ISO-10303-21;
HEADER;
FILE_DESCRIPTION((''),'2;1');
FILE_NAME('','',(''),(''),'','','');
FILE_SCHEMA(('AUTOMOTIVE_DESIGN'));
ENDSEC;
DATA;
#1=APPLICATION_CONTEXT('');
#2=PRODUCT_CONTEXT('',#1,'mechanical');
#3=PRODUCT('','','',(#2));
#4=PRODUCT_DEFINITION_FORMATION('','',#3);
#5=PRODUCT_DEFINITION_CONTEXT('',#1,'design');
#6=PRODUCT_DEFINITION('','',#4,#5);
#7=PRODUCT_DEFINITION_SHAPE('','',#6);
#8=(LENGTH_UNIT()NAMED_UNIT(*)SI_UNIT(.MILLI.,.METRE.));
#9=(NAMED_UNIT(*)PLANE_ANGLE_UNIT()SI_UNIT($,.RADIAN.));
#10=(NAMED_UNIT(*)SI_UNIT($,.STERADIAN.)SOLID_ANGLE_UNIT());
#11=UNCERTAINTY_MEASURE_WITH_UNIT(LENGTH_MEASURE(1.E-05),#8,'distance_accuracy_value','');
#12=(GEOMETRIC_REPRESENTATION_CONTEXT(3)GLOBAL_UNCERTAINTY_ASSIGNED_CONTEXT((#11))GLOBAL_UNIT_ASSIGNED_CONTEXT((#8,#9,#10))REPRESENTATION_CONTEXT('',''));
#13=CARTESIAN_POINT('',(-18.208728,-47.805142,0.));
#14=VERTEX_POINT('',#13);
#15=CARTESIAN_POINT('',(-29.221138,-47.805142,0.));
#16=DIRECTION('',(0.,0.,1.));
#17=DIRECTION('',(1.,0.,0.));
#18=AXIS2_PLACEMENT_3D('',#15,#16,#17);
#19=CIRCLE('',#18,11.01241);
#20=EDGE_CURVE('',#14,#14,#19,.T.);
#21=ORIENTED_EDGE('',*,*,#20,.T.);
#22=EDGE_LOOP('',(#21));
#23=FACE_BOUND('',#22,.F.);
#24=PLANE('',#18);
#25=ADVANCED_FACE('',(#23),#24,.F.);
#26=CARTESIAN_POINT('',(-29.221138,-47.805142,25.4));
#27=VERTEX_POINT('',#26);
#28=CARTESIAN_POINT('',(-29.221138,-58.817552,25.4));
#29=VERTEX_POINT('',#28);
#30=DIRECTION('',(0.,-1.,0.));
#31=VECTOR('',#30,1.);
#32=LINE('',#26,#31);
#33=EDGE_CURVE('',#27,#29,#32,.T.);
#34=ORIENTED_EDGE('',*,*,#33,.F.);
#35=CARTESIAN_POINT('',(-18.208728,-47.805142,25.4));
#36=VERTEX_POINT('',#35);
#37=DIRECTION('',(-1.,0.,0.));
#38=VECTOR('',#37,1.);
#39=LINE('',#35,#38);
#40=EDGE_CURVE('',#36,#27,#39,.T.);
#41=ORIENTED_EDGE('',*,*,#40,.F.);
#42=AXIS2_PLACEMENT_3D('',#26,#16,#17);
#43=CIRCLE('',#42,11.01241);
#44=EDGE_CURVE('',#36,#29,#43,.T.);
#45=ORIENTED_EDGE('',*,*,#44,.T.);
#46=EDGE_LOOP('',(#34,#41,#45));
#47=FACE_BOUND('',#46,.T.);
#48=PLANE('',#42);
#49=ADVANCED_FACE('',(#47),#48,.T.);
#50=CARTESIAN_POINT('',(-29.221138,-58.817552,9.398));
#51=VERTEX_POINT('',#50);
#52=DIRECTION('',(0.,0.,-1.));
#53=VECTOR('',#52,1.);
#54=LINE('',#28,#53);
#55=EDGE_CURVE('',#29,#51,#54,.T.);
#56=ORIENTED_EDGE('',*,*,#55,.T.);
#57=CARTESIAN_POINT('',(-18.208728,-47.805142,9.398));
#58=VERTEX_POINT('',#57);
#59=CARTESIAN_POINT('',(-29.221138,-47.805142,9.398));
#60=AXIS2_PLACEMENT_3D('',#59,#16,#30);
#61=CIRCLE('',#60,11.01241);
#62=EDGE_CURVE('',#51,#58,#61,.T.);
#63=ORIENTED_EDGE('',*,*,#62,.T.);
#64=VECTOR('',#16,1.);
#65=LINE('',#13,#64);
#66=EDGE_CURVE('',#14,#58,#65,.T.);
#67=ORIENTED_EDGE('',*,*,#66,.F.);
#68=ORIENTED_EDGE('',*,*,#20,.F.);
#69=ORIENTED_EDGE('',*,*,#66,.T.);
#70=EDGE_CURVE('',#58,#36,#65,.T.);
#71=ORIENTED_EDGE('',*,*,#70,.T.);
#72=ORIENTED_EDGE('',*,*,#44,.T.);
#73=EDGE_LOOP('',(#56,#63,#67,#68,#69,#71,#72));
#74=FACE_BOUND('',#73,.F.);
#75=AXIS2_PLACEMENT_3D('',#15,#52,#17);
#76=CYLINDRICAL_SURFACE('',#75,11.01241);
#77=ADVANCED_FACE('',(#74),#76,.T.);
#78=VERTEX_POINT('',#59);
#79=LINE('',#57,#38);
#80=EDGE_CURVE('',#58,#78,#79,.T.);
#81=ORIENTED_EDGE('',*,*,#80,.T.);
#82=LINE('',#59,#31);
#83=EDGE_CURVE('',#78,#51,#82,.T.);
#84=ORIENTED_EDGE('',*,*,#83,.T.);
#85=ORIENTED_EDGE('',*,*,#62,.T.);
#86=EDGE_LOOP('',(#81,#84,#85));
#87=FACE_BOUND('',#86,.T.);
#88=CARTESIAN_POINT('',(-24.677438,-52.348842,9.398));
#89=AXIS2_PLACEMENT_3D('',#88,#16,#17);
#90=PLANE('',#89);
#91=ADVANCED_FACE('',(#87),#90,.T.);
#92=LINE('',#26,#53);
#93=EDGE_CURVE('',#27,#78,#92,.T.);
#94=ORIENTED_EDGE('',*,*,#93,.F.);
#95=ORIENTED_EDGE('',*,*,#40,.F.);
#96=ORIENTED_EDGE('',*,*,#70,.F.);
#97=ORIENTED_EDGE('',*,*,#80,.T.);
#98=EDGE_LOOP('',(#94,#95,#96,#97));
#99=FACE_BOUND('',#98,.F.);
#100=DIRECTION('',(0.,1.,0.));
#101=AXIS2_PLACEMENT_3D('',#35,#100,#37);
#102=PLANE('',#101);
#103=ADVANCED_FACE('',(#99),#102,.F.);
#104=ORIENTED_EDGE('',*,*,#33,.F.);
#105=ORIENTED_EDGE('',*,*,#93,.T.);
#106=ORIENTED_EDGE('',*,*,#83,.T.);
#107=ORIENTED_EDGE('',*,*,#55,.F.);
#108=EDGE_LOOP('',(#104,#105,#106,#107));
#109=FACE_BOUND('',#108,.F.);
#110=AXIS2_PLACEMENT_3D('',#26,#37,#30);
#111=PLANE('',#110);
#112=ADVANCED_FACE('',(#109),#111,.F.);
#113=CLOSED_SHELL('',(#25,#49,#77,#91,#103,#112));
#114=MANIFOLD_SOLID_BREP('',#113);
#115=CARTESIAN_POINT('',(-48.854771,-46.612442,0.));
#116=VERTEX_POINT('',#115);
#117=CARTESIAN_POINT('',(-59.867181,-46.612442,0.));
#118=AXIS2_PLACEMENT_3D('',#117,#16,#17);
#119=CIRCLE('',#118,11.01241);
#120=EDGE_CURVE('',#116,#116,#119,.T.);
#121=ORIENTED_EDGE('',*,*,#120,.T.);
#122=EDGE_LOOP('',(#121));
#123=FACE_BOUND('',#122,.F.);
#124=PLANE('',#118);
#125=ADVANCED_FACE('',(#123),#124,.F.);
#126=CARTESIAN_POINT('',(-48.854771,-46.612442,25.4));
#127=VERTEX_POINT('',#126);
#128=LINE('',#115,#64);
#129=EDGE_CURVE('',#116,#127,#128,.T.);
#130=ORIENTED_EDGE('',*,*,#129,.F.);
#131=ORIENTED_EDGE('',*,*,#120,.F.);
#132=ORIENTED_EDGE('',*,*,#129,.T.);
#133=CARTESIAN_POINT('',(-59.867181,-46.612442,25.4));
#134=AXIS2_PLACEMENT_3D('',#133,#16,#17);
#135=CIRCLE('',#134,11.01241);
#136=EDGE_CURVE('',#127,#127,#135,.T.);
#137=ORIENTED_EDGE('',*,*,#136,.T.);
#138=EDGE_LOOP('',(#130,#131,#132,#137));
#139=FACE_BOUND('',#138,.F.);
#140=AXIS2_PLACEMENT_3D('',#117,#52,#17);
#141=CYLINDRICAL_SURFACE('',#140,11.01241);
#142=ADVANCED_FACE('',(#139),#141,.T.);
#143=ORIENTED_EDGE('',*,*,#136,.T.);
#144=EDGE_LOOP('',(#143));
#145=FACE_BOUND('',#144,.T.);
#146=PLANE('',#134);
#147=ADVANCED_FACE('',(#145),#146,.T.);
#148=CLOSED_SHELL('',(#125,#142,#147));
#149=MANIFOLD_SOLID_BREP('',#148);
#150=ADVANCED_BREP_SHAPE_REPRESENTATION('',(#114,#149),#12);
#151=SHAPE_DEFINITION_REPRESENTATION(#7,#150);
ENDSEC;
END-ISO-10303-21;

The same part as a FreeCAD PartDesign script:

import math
import FreeCAD as App
import Part
import Sketcher

V = App.Vector
Q = App.Units.Quantity

doc = App.newDocument("Part")
body = doc.addObject("PartDesign::Body", "Body")

# Sketch on XY plane
sketch1 = body.newObject("Sketcher::SketchObject", "Sketch")
sketch1.AttachmentSupport = (doc.getObject("XY_Plane"), [""])
sketch1.MapMode = "FlatFace"
sketch1.addGeometry(Part.Circle(V(-60, -47, 0), V(0, 0, 1), 11), False)
sketch1.addConstraint([
    Sketcher.Constraint("Diameter", 0, 22.02482),
    Sketcher.Constraint("DistanceX", 0, 3, -1, 1, 59.867181),
    Sketcher.Constraint("DistanceY", 0, 3, -1, 1, 46.612442),
])
pad1 = body.newObject("PartDesign::Pad", "Pad")
pad1.Profile = sketch1
pad1.Length = Q("1 in")
body2 = doc.addObject("PartDesign::Body", "Body001")

# Sketch on XY plane
sketch2 = body2.newObject("Sketcher::SketchObject", "Sketch001")
sketch2.AttachmentSupport = (doc.getObject("XY_Plane001"), [""])
sketch2.MapMode = "FlatFace"
sketch2.addGeometry(Part.Circle(V(-29, -48, 0), V(0, 0, 1), 11), False)
sketch2.addConstraint([
    Sketcher.Constraint("Diameter", 0, 22.02482),
    Sketcher.Constraint("DistanceY", 0, 3, -1, 1, 47.805142),
    Sketcher.Constraint("DistanceX", 0, 3, -1, 1, 29.221138),
])
pad2 = body2.newObject("PartDesign::Pad", "Pad001")
pad2.Profile = sketch2
pad2.Length = Q("1 in")

# Sketch on XY plane
sketch3 = body2.newObject("Sketcher::SketchObject", "Sketch002")
sketch3.AttachmentSupport = (doc.getObject("XY_Plane001"), [""])
sketch3.MapMode = "FlatFace"
sketch3.AttachmentOffset = App.Placement(V(0, 0, 1 * 25.4), App.Rotation())
sketch3.addGeometry([
    Part.LineSegment(V(-18, -48, 0), V(-29, -48, 0)),
    Part.LineSegment(V(-29, -48, 0), V(-29, -59, 0)),
    Part.ArcOfCircle(Part.Circle(V(-29, -48, 0), V(0, 0, 1), 11), math.radians(-90), math.radians(0)),
], False)
sketch3.addConstraint([
    Sketcher.Constraint("Coincident", 0, 2, 1, 1),
    Sketcher.Constraint("Coincident", 1, 2, 2, 1),
    Sketcher.Constraint("Coincident", 2, 2, 0, 1),
    Sketcher.Constraint("Horizontal", 0),
    Sketcher.Constraint("Vertical", 1),
    Sketcher.Constraint("Coincident", 0, 2, 2, 3),
    Sketcher.Constraint("Radius", 2, 11.01241),
    Sketcher.Constraint("DistanceY", 2, 3, -1, 1, 47.805142),
    Sketcher.Constraint("DistanceX", 2, 3, -1, 1, 29.221138),
])
pocket1 = body2.newObject("PartDesign::Pocket", "Pocket")
pocket1.Profile = sketch3
pocket1.Length = Q("0.63 in")

doc.recompute()
